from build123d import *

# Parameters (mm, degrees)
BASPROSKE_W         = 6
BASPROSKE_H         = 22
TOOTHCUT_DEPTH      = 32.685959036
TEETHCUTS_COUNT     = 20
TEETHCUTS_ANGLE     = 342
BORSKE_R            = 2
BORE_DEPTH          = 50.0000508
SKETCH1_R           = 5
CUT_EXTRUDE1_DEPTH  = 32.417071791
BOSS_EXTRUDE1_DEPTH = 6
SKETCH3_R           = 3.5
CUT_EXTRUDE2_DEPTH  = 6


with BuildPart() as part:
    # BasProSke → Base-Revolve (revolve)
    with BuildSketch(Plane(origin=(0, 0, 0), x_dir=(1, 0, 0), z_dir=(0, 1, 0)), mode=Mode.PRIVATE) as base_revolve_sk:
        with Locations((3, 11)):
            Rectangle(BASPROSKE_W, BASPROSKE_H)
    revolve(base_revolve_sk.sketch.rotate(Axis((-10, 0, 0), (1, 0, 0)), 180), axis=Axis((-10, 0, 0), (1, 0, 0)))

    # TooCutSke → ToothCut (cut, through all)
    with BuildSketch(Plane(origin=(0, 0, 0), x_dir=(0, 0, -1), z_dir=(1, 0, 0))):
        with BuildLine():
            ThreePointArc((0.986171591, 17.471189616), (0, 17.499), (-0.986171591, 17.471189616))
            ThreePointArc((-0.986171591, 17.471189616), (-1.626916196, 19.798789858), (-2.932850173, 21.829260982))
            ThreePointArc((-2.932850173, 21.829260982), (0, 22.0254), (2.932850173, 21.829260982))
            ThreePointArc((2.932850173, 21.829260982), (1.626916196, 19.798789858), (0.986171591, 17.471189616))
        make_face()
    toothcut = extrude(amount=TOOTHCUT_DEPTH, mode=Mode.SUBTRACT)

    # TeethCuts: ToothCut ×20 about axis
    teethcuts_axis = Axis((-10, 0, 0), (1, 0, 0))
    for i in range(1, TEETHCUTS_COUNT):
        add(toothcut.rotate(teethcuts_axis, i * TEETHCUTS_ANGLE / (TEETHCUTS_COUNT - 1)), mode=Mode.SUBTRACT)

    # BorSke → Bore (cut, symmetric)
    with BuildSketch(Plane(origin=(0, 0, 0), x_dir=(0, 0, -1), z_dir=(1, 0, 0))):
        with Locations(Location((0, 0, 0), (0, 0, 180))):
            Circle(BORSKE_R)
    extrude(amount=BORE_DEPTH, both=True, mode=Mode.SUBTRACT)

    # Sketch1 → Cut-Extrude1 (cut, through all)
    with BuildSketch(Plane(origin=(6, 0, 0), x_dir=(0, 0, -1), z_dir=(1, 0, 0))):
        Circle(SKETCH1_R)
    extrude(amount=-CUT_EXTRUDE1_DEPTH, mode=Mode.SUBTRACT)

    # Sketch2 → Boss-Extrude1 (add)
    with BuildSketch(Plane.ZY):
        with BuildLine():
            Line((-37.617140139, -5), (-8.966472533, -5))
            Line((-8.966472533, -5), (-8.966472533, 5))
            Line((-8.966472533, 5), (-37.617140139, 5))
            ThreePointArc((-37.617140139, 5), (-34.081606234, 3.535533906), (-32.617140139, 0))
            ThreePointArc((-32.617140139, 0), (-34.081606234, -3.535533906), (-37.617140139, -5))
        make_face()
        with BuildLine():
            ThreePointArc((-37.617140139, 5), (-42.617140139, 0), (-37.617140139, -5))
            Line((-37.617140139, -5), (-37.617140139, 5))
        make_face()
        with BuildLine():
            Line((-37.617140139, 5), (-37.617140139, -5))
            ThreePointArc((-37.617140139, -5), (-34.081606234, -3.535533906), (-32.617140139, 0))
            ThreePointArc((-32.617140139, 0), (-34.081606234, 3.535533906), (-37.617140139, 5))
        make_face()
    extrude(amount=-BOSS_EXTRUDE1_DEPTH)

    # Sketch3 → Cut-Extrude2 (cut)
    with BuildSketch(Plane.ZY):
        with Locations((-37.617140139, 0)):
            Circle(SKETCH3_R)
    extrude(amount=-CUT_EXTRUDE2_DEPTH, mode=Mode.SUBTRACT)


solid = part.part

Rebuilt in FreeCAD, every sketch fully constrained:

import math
import FreeCAD as App
import Part
import Sketcher
from FreeCAD import Vector

doc = App.newDocument("Part")
body = doc.addObject("PartDesign::Body", "Body")

sketch1 = doc.addObject("Sketcher::SketchObject", "Sketch")
body.addObject(sketch1)
sketch1.AttachmentSupport = (doc.XZ_Plane, [""])
sketch1.MapMode = "FlatFace"
sketch1.addGeometry([
    Part.LineSegment(Vector(0, -22, 0), Vector(0, 0, 0)),
    Part.LineSegment(Vector(0, 0, 0), Vector(6, 0, 0)),
    Part.LineSegment(Vector(6, 0, 0), Vector(6, -22, 0)),
    Part.LineSegment(Vector(6, -22, 0), Vector(0, -22, 0)),
], False)
sketch1.addConstraint([
    Sketcher.Constraint("Coincident", 0, 2, 1, 1),
    Sketcher.Constraint("Coincident", 1, 2, 2, 1),
    Sketcher.Constraint("Coincident", 2, 2, 3, 1),
    Sketcher.Constraint("Coincident", 3, 2, 0, 1),
    Sketcher.Constraint("Vertical", 0),
    Sketcher.Constraint("Horizontal", 1),
    Sketcher.Constraint("Vertical", 2),
    Sketcher.Constraint("Horizontal", 3),
    Sketcher.Constraint("Coincident", 0, 2, -1, 1),
    Sketcher.Constraint("DistanceX", 1, 1, 1, 2, 6.0),
    Sketcher.Constraint("DistanceY", 0, 1, 0, 2, 22.0),
])
revolution = doc.addObject("PartDesign::Revolution", "Revolution")
body.addObject(revolution)
revolution.Profile = sketch1
revolution.ReferenceAxis = (sketch1, ["H_Axis"])
revolution.Angle = 360

sketch2 = doc.addObject("Sketcher::SketchObject", "Sketch001")
body.addObject(sketch2)
sketch2.AttachmentSupport = (doc.YZ_Plane, [""])
sketch2.MapMode = "FlatFace"
sketch2.addGeometry([
    Part.ArcOfCircle(Part.Circle(Vector(0, 0, 0), Vector(0, 0, 1), 17.5), math.radians(-3.23), math.radians(3.23)),
    Part.ArcOfCircle(Part.Circle(Vector(16.5, -8.9, 0), Vector(0, 0, 1), 8), math.radians(49), math.radians(83)),
    Part.ArcOfCircle(Part.Circle(Vector(0, 0, 0), Vector(0, 0, 1), 22), math.radians(-7.65), math.radians(7.65)),
    Part.ArcOfCircle(Part.Circle(Vector(16.5, 8.9, 0), Vector(0, 0, 1), 8), math.radians(-83), math.radians(-49)),
], False)
sketch2.addConstraint([
    Sketcher.Constraint("Coincident", 0, 1, 1, 2),
    Sketcher.Constraint("Coincident", 1, 1, 2, 1),
    Sketcher.Constraint("Coincident", 2, 2, 3, 2),
    Sketcher.Constraint("Coincident", 3, 1, 0, 2),
    Sketcher.Constraint("Coincident", 0, 3, -1, 1),
    Sketcher.Constraint("Coincident", 2, 3, -1, 1),
    Sketcher.Constraint("Equal", 1, 3),
    Sketcher.Constraint("Symmetric", 1, 3, 3, 3, -1),
    Sketcher.Constraint("Radius", 1, 8.0),
    Sketcher.Constraint("Radius", 0, 17.499),
    Sketcher.Constraint("Radius", 2, 22.0254),
    Sketcher.Constraint("DistanceY", 1, 1, 2, 2, 5.8657),
    Sketcher.Constraint("DistanceX", -1, 1, 1, 3, 16.536031),
])
pocket1 = doc.addObject("PartDesign::Pocket", "Pocket")
body.addObject(pocket1)
pocket1.Profile = sketch2
pocket1.Type = "ThroughAll"
pocket1.Reversed = True
doc.recompute()

polarpattern = doc.addObject("PartDesign::PolarPattern", "PolarPattern")
body.addObject(polarpattern)
polarpattern.Originals = [pocket1]
polarpattern.Axis = (doc.X_Axis, [""])
polarpattern.Angle = 360
polarpattern.Occurrences = 20
body.Tip = polarpattern

sketch3 = doc.addObject("Sketcher::SketchObject", "Sketch002")
body.addObject(sketch3)
sketch3.AttachmentSupport = (doc.YZ_Plane, [""])
sketch3.MapMode = "FlatFace"
sketch3.addGeometry(Part.Circle(Vector(0, 0, 0), Vector(0, 0, 1), 2), False)
sketch3.addConstraint([
    Sketcher.Constraint("Coincident", 0, 3, -1, 1),
    Sketcher.Constraint("Diameter", 0, 4.0),
])
pocket2 = doc.addObject("PartDesign::Pocket", "Pocket001")
body.addObject(pocket2)
pocket2.Profile = sketch3
pocket2.Length = 100.000102
pocket2.Midplane = True

sketch4 = doc.addObject("Sketcher::SketchObject", "Sketch003")
body.addObject(sketch4)
sketch4.AttachmentSupport = (doc.YZ_Plane, [""])
sketch4.MapMode = "FlatFace"
sketch4.AttachmentOffset = App.Placement(Vector(0, 0, 6), App.Rotation())
sketch4.addGeometry(Part.Circle(Vector(0, 0, 0), Vector(0, 0, 1), 5), False)
sketch4.addConstraint([
    Sketcher.Constraint("Coincident", 0, 3, -1, 1),
    Sketcher.Constraint("Diameter", 0, 10.0),
])
pocket3 = doc.addObject("PartDesign::Pocket", "Pocket002")
body.addObject(pocket3)
pocket3.Profile = sketch4
pocket3.Type = "ThroughAll"

sketch5 = doc.addObject("Sketcher::SketchObject", "Sketch004")
body.addObject(sketch5)
sketch5.AttachmentSupport = (doc.YZ_Plane, [""])
sketch5.MapMode = "FlatFace"
sketch5.addGeometry([
    Part.LineSegment(Vector(-5, -9, 0), Vector(5, -9, 0)),
    Part.LineSegment(Vector(5, -9, 0), Vector(5, -38, 0)),
    Part.ArcOfCircle(Part.Circle(Vector(0, -38, 0), Vector(0, 0, 1), 5), math.radians(180), math.radians(360)),
    Part.LineSegment(Vector(-5, -38, 0), Vector(-5, -9, 0)),
], False)
sketch5.addConstraint([
    Sketcher.Constraint("Coincident", 0, 2, 1, 1),
    Sketcher.Constraint("Tangent", 1, 2, 2, 2),
    Sketcher.Constraint("Tangent", 2, 1, 3, 1),
    Sketcher.Constraint("Coincident", 3, 2, 0, 1),
    Sketcher.Constraint("Horizontal", 0),
    Sketcher.Constraint("Vertical", 1),
    Sketcher.Constraint("Vertical", 3),
    Sketcher.Constraint("PointOnObject", 2, 3, -2),
    Sketcher.Constraint("Radius", 2, 5.0),
    Sketcher.Constraint("DistanceY", 1, 2, 1, 1, 28.650668),
    Sketcher.Constraint("DistanceY", 2, 3, -1, 1, 37.61714),
])
pad1 = doc.addObject("PartDesign::Pad", "Pad")
body.addObject(pad1)
pad1.Profile = sketch5
pad1.Length = 6

sketch6 = doc.addObject("Sketcher::SketchObject", "Sketch005")
body.addObject(sketch6)
sketch6.AttachmentSupport = (doc.YZ_Plane, [""])
sketch6.MapMode = "FlatFace"
sketch6.addGeometry(Part.Circle(Vector(0, -37.6, 0), Vector(0, 0, 1), 3.5), False)
sketch6.addConstraint([
    Sketcher.Constraint("PointOnObject", 0, 3, -2),
    Sketcher.Constraint("Diameter", 0, 7.0),
    Sketcher.Constraint("DistanceY", 0, 3, -1, 1, 37.61714),
])
pocket4 = doc.addObject("PartDesign::Pocket", "Pocket003")
body.addObject(pocket4)
pocket4.Profile = sketch6
pocket4.Length = 6
pocket4.Reversed = True

doc.recompute()
